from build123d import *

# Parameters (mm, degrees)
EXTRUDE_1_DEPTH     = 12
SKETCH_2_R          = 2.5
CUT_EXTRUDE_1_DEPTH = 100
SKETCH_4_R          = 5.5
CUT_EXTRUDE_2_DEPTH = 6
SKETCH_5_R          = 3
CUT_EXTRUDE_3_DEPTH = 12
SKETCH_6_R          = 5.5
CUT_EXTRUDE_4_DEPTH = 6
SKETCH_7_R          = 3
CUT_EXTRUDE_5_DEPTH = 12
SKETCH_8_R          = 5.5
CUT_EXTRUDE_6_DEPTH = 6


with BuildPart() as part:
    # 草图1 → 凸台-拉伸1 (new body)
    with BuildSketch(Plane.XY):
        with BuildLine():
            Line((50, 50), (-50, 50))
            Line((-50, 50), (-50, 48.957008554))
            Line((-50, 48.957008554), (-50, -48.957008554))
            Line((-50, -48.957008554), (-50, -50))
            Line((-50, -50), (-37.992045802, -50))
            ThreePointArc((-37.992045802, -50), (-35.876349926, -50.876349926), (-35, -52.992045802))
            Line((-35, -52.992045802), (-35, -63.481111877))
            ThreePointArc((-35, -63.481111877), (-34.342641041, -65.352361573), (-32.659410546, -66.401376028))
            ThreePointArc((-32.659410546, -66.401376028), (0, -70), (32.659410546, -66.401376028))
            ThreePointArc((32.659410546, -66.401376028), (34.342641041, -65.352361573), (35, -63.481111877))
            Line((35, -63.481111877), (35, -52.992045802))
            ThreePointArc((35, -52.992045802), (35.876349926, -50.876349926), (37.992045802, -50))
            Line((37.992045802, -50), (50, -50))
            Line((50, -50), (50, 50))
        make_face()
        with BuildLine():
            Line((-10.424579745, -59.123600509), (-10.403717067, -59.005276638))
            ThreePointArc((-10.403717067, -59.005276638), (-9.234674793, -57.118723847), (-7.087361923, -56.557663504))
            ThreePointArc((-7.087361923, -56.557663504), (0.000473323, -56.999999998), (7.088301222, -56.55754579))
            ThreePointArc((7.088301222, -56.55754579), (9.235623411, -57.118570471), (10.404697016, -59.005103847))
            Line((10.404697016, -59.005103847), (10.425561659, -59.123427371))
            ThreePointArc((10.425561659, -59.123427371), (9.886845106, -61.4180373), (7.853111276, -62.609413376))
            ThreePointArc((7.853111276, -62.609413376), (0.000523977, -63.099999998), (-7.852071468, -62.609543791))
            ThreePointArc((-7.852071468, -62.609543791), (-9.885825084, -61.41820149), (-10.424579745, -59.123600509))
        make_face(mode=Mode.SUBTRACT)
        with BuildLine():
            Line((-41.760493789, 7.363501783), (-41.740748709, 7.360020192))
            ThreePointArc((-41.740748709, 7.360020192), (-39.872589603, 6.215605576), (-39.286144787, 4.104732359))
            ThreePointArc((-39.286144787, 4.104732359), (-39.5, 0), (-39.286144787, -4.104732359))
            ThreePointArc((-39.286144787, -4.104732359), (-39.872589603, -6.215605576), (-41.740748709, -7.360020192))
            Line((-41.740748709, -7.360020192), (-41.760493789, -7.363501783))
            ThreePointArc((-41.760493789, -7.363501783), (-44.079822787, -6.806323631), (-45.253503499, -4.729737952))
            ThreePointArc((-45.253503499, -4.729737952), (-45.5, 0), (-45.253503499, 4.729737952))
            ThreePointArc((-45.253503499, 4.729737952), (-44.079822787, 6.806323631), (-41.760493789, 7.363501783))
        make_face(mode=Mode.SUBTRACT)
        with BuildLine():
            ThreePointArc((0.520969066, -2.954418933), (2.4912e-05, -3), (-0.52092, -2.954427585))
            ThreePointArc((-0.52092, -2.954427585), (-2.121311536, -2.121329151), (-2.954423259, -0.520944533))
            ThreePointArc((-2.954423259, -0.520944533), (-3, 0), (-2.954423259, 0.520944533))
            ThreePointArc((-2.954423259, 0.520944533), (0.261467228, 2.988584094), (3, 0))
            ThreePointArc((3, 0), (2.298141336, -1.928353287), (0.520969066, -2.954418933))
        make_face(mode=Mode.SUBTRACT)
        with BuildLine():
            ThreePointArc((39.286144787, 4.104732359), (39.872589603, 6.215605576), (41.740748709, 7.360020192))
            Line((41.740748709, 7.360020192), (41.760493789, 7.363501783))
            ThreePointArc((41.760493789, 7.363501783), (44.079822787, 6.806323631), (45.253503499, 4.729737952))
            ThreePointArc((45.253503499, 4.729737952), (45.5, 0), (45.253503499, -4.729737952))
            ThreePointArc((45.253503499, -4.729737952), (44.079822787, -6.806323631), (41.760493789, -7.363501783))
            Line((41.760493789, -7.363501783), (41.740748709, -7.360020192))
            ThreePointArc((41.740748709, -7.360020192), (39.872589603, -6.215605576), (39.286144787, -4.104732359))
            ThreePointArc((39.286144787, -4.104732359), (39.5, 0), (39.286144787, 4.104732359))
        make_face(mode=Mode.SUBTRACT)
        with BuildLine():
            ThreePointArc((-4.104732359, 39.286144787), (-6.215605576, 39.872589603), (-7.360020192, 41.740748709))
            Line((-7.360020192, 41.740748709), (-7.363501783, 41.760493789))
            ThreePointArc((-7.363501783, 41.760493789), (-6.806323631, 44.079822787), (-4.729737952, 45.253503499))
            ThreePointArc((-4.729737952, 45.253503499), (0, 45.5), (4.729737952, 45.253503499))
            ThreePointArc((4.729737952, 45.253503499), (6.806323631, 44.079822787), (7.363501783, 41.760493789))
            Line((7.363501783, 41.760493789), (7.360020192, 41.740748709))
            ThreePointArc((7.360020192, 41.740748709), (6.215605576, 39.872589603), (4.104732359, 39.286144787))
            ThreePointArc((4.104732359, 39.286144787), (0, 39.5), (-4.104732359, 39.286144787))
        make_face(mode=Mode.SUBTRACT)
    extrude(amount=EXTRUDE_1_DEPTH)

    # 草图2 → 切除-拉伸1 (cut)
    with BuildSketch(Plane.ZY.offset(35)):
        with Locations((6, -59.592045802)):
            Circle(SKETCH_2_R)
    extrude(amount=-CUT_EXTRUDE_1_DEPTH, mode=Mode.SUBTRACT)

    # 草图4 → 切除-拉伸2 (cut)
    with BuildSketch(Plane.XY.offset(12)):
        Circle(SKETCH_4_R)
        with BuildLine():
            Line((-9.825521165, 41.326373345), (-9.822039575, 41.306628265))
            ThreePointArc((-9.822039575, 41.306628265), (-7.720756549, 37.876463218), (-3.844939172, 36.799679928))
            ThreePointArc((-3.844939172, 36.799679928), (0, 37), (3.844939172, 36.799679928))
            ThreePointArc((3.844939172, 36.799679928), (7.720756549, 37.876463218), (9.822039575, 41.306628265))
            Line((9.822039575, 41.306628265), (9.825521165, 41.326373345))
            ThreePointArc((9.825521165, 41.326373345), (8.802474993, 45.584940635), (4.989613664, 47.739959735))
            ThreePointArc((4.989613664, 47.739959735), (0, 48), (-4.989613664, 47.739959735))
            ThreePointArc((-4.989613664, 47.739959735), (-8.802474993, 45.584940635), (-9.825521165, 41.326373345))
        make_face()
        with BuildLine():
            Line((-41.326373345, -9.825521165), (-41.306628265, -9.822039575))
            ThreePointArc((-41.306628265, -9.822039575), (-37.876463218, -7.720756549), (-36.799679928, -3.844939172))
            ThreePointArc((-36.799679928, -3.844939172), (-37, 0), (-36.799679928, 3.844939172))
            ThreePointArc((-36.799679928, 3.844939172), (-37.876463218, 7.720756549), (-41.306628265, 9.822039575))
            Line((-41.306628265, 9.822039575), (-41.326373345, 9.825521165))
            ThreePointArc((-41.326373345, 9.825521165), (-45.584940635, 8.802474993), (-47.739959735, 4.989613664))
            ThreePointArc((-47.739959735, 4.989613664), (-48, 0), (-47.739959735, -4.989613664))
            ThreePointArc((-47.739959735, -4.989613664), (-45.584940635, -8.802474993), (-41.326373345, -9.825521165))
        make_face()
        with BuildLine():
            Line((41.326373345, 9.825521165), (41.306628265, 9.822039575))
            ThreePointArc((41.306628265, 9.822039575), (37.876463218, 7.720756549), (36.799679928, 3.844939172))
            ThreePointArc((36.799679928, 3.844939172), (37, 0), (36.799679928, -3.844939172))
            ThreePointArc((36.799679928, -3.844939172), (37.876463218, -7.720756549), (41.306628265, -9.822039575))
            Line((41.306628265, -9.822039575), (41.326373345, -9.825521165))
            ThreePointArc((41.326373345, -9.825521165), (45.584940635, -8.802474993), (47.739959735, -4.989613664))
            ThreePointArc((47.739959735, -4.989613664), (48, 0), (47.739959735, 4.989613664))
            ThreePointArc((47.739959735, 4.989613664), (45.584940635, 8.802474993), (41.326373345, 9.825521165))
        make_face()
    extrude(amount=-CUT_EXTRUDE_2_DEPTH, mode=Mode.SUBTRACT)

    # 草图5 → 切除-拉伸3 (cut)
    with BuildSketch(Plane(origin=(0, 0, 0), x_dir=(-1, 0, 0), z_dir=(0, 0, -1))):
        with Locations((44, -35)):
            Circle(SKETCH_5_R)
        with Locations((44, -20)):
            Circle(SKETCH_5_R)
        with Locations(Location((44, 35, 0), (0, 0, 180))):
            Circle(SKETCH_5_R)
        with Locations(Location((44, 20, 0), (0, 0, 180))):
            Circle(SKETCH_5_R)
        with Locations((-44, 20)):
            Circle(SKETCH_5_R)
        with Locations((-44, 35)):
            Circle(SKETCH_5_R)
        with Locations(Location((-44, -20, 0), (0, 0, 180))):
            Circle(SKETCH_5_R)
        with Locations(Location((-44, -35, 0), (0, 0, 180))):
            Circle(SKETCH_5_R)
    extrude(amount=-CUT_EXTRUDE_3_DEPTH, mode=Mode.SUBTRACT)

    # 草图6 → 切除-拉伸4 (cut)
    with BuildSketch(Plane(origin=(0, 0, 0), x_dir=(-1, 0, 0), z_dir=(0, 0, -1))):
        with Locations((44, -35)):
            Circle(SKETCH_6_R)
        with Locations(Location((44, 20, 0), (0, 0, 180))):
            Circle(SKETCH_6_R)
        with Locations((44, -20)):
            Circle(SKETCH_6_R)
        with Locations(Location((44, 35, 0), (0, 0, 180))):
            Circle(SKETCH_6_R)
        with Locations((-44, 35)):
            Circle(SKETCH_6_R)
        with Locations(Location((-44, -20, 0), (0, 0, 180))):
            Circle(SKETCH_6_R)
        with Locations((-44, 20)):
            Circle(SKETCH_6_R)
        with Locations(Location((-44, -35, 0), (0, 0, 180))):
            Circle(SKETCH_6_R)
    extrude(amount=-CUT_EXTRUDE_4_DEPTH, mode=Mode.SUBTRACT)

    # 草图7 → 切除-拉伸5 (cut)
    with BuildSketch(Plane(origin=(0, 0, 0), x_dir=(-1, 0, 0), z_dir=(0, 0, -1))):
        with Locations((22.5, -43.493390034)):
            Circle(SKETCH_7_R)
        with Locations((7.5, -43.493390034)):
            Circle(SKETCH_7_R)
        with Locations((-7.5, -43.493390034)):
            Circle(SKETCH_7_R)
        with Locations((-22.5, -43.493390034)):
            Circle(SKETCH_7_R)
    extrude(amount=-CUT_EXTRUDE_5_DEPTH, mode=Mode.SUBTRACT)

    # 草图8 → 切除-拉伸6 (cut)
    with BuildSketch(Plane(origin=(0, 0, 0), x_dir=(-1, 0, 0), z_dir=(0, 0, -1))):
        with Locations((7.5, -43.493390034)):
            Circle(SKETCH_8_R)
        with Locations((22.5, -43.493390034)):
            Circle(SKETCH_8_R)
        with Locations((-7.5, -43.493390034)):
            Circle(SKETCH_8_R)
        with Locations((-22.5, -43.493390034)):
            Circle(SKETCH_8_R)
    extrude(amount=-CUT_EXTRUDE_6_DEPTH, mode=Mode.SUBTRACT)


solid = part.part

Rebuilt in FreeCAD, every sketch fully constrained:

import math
import FreeCAD as App
import Part
import Sketcher

V = App.Vector
Q = App.Units.Quantity

doc = App.newDocument("Part")
body = doc.addObject("PartDesign::Body", "Body")

sketch1 = body.newObject("Sketcher::SketchObject", "Sketch")
sketch1.AttachmentSupport = (doc.getObject("XY_Plane"), [""])
sketch1.MapMode = "FlatFace"
sketch1.addGeometry([
    Part.LineSegment(V(50, 50, 0), V(-50, 50, 0)),
    Part.LineSegment(V(-50, 50, 0), V(-50, -50, 0)),
    Part.LineSegment(V(-50, -50, 0), V(-37.992046, -50, 0)),
    Part.ArcOfCircle(Part.Circle(V(-37.992046, -52.992046, 0), V(0, 0, 1), 2.992046), math.radians(0), math.radians(90)),
    Part.LineSegment(V(-35, -52.992046, 0), V(-35, -63.481112, 0)),
    Part.ArcOfCircle(Part.Circle(V(-32.007954, -63.481112, 0), V(0, 0, 1), 2.992046), math.radians(-180), math.radians(-102.575705)),
    Part.ArcOfCircle(Part.Circle(V(0, 80, 0), V(0, 0, 1), 150), math.radians(-102.575705), math.radians(-77.424295)),
    Part.ArcOfCircle(Part.Circle(V(32.007954, -63.481112, 0), V(0, 0, 1), 2.992046), math.radians(-77.424295), math.radians(0)),
    Part.LineSegment(V(35, -63.481112, 0), V(35, -52.992046, 0)),
    Part.ArcOfCircle(Part.Circle(V(37.992046, -52.992046, 0), V(0, 0, 1), 2.992046), math.radians(90), math.radians(180)),
    Part.LineSegment(V(37.992046, -50, 0), V(50, -50, 0)),
    Part.LineSegment(V(50, -50, 0), V(50, 50, 0)),
    Part.ArcOfCircle(Part.Circle(V(-7.48, -59.642784, 0), V(0, 0, 1), 2.99), math.radians(170.000476), math.radians(262.851667)),
    Part.LineSegment(V(-10.42458, -59.123601, 0), V(-10.403717, -59.005277, 0)),
    Part.ArcOfCircle(Part.Circle(V(-7.459138, -59.52446, 0), V(0, 0, 1), 2.99), math.radians(82.857375), math.radians(170.000476)),
    Part.ArcOfCircle(Part.Circle(V(0, 0, 0), V(0, 0, 1), 57), math.radians(-97.142625), math.radians(-82.856424)),
    Part.ArcOfCircle(Part.Circle(V(7.460126, -59.524336, 0), V(0, 0, 1), 2.99), math.radians(10.000476), math.radians(97.143576)),
    Part.LineSegment(V(10.404697, -59.005104, 0), V(10.425562, -59.123427, 0)),
    Part.ArcOfCircle(Part.Circle(V(7.480991, -59.64266, 0), V(0, 0, 1), 2.99), math.radians(-82.850715), math.radians(10.000476)),
    Part.ArcOfCircle(Part.Circle(V(0, 0, 0), V(0, 0, 1), 63.1), math.radians(-97.148333), math.radians(-82.850715)),
    Part.ArcOfCircle(Part.Circle(V(-42.279702, 4.418927, 0), V(0, 0, 1), 2.99), math.radians(80), math.radians(174.033309)),
    Part.LineSegment(V(-41.760494, 7.363502, 0), V(-41.740749, 7.36002, 0)),
    Part.ArcOfCircle(Part.Circle(V(-42.259957, 4.415445, 0), V(0, 0, 1), 2.99), math.radians(-5.96479), math.radians(80)),
    Part.ArcOfCircle(Part.Circle(V(0, 0, 0), V(0, 0, 1), 39.5), math.radians(174.03521), math.radians(185.96479)),
    Part.ArcOfCircle(Part.Circle(V(-42.259957, -4.415445, 0), V(0, 0, 1), 2.99), math.radians(-80), math.radians(5.96479)),
    Part.LineSegment(V(-41.740749, -7.36002, 0), V(-41.760494, -7.363502, 0)),
    Part.ArcOfCircle(Part.Circle(V(-42.279702, -4.418927, 0), V(0, 0, 1), 2.99), math.radians(-174.033309), math.radians(-80)),
    Part.ArcOfCircle(Part.Circle(V(0, 0, 0), V(0, 0, 1), 45.5), math.radians(174.033309), math.radians(185.966691)),
    Part.ArcOfCircle(Part.Circle(V(0, 0, 0), V(0, 0, 1), 3), math.radians(-79.999524), math.radians(0)),
    Part.ArcOfCircle(Part.Circle(V(0, 0, 0), V(0, 0, 1), 3), math.radians(-99.999524), math.radians(-79.999524)),
    Part.ArcOfCircle(Part.Circle(V(0, 0, 0), V(0, 0, 1), 3), math.radians(-170), math.radians(-99.999524)),
    Part.ArcOfCircle(Part.Circle(V(0, 0, 0), V(0, 0, 1), 3), math.radians(170), math.radians(190)),
    Part.ArcOfCircle(Part.Circle(V(0, 0, 0), V(0, 0, 1), 3), math.radians(0), math.radians(170)),
    Part.ArcOfCircle(Part.Circle(V(0, 0, 0), V(0, 0, 1), 39.5), math.radians(-5.96479), math.radians(5.96479)),
    Part.ArcOfCircle(Part.Circle(V(42.259957, 4.415445, 0), V(0, 0, 1), 2.99), math.radians(100), math.radians(185.96479)),
    Part.LineSegment(V(41.740749, 7.36002, 0), V(41.760494, 7.363502, 0)),
    Part.ArcOfCircle(Part.Circle(V(42.279702, 4.418927, 0), V(0, 0, 1), 2.99), math.radians(5.966691), math.radians(100)),
    Part.ArcOfCircle(Part.Circle(V(0, 0, 0), V(0, 0, 1), 45.5), math.radians(-5.966691), math.radians(5.966691)),
    Part.ArcOfCircle(Part.Circle(V(42.279702, -4.418927, 0), V(0, 0, 1), 2.99), math.radians(-100), math.radians(-5.966691)),
    Part.LineSegment(V(41.760494, -7.363502, 0), V(41.740749, -7.36002, 0)),
    Part.ArcOfCircle(Part.Circle(V(42.259957, -4.415445, 0), V(0, 0, 1), 2.99), math.radians(174.03521), math.radians(260)),
    Part.ArcOfCircle(Part.Circle(V(0, 0, 0), V(0, 0, 1), 39.5), math.radians(84.03521), math.radians(95.96479)),
    Part.ArcOfCircle(Part.Circle(V(-4.415445, 42.259957, 0), V(0, 0, 1), 2.99), math.radians(-170), math.radians(-84.03521)),
    Part.LineSegment(V(-7.36002, 41.740749, 0), V(-7.363502, 41.760494, 0)),
    Part.ArcOfCircle(Part.Circle(V(-4.418927, 42.279702, 0), V(0, 0, 1), 2.99), math.radians(95.966691), math.radians(190)),
    Part.ArcOfCircle(Part.Circle(V(0, 0, 0), V(0, 0, 1), 45.5), math.radians(84.033309), math.radians(95.966691)),
    Part.ArcOfCircle(Part.Circle(V(4.418927, 42.279702, 0), V(0, 0, 1), 2.99), math.radians(-10), math.radians(84.033309)),
    Part.LineSegment(V(7.363502, 41.760494, 0), V(7.36002, 41.740749, 0)),
    Part.ArcOfCircle(Part.Circle(V(4.415445, 42.259957, 0), V(0, 0, 1), 2.99), math.radians(-95.96479), math.radians(-10)),
], False)
sketch1.addConstraint([
    Sketcher.Constraint("Coincident", 0, 2, 1, 1),
    Sketcher.Constraint("Coincident", 1, 2, 2, 1),
    Sketcher.Constraint("Tangent", 2, 2, 3, 2),
    Sketcher.Constraint("Tangent", 3, 1, 4, 1),
    Sketcher.Constraint("Tangent", 4, 2, 5, 1),
    Sketcher.Constraint("Tangent", 5, 2, 6, 1),
    Sketcher.Constraint("Tangent", 6, 2, 7, 1),
    Sketcher.Constraint("Tangent", 7, 2, 8, 1),
    Sketcher.Constraint("Tangent", 8, 2, 9, 2),
    Sketcher.Constraint("Tangent", 9, 1, 10, 1),
    Sketcher.Constraint("Coincident", 10, 2, 11, 1),
    Sketcher.Constraint("Coincident", 11, 2, 0, 1),
    Sketcher.Constraint("Tangent", 12, 1, 13, 1),
    Sketcher.Constraint("Tangent", 13, 2, 14, 2),
    Sketcher.Constraint("Tangent", 14, 1, 15, 1),
    Sketcher.Constraint("Tangent", 15, 2, 16, 2),
    Sketcher.Constraint("Tangent", 16, 1, 17, 1),
    Sketcher.Constraint("Tangent", 17, 2, 18, 2),
    Sketcher.Constraint("Tangent", 18, 1, 19, 2),
    Sketcher.Constraint("Tangent", 19, 1, 12, 2),
    Sketcher.Constraint("Tangent", 20, 1, 21, 1),
    Sketcher.Constraint("Tangent", 21, 2, 22, 2),
    Sketcher.Constraint("Tangent", 22, 1, 23, 1),
    Sketcher.Constraint("Tangent", 23, 2, 24, 2),
    Sketcher.Constraint("Tangent", 24, 1, 25, 1),
    Sketcher.Constraint("Tangent", 25, 2, 26, 2),
    Sketcher.Constraint("Tangent", 26, 1, 27, 2),
    Sketcher.Constraint("Tangent", 27, 1, 20, 2),
    Sketcher.Constraint("Tangent", 28, 1, 29, 2),
    Sketcher.Constraint("Tangent", 29, 1, 30, 2),
    Sketcher.Constraint("Tangent", 30, 1, 31, 2),
    Sketcher.Constraint("Tangent", 31, 1, 32, 2),
    Sketcher.Constraint("Tangent", 32, 1, 28, 2),
    Sketcher.Constraint("Tangent", 33, 2, 34, 2),
    Sketcher.Constraint("Tangent", 34, 1, 35, 1),
    Sketcher.Constraint("Tangent", 35, 2, 36, 2),
    Sketcher.Constraint("Tangent", 36, 1, 37, 2),
    Sketcher.Constraint("Tangent", 37, 1, 38, 2),
    Sketcher.Constraint("Tangent", 38, 1, 39, 1),
    Sketcher.Constraint("Tangent", 39, 2, 40, 2),
    Sketcher.Constraint("Tangent", 40, 1, 33, 1),
    Sketcher.Constraint("Tangent", 41, 2, 42, 2),
    Sketcher.Constraint("Tangent", 42, 1, 43, 1),
    Sketcher.Constraint("Tangent", 43, 2, 44, 2),
    Sketcher.Constraint("Tangent", 44, 1, 45, 2),
    Sketcher.Constraint("Tangent", 45, 1, 46, 2),
    Sketcher.Constraint("Tangent", 46, 1, 47, 1),
    Sketcher.Constraint("Tangent", 47, 2, 48, 2),
    Sketcher.Constraint("Tangent", 48, 1, 41, 1),
    Sketcher.Constraint("Horizontal", 0),
    Sketcher.Constraint("Vertical", 1),
    Sketcher.Constraint("Horizontal", 2),
    Sketcher.Constraint("Vertical", 4),
    Sketcher.Constraint("Vertical", 8),
    Sketcher.Constraint("Horizontal", 10),
    Sketcher.Constraint("Vertical", 11),
    Sketcher.Constraint("Coincident", 15, 3, -1, 1),
    Sketcher.Constraint("Coincident", 19, 3, -1, 1),
    Sketcher.Constraint("Coincident", 23, 3, -1, 1),
    Sketcher.Constraint("Coincident", 27, 3, -1, 1),
    Sketcher.Constraint("Coincident", 28, 3, -1, 1),
    Sketcher.Constraint("Coincident", 30, 3, -1, 1),
    Sketcher.Constraint("Coincident", 33, 3, -1, 1),
    Sketcher.Constraint("Coincident", 37, 3, -1, 1),
    Sketcher.Constraint("Coincident", 41, 3, -1, 1),
    Sketcher.Constraint("Coincident", 45, 3, -1, 1),
    Sketcher.Constraint("Equal", 3, 5),
    Sketcher.Constraint("Equal", 5, 7),
    Sketcher.Constraint("Equal", 7, 9),
    Sketcher.Constraint("Equal", 12, 14),
    Sketcher.Constraint("Equal", 14, 16),
    Sketcher.Constraint("Equal", 16, 18),
    Sketcher.Constraint("Equal", 18, 20),
    Sketcher.Constraint("Equal", 20, 22),
    Sketcher.Constraint("Equal", 22, 24),
    Sketcher.Constraint("Equal", 24, 26),
    Sketcher.Constraint("Equal", 23, 33),
    Sketcher.Constraint("Equal", 26, 34),
    Sketcher.Constraint("Equal", 34, 36),
    Sketcher.Constraint("Equal", 27, 37),
    Sketcher.Constraint("Equal", 36, 38),
    Sketcher.Constraint("Equal", 38, 40),
    Sketcher.Constraint("Equal", 33, 41),
    Sketcher.Constraint("Equal", 40, 42),
    Sketcher.Constraint("Equal", 42, 44),
    Sketcher.Constraint("Equal", 37, 45),
    Sketcher.Constraint("Equal", 44, 46),
    Sketcher.Constraint("Equal", 46, 48),
    Sketcher.Constraint("Symmetric", 0, 2, 10, 2, -1, 1),
    Sketcher.Constraint("Symmetric", 24, 1, 34, 1, -1, 1),
    Sketcher.Constraint("Symmetric", 20, 1, 38, 1, -1, 1),
    Sketcher.Constraint("Symmetric", 5, 3, 7, 3, -2),
    Sketcher.Constraint("Symmetric", 21, 2, 34, 1, -2),
    Sketcher.Constraint("Symmetric", 43, 2, 46, 1, -2),
    Sketcher.Constraint("PointOnObject", 32, 1, -1),
    Sketcher.Constraint("Horizontal", 3, 3, 9, 3),
    Sketcher.Constraint("Vertical", 30, 1, 31, 1),
    Sketcher.Constraint("Equal", 0, 1),
    Sketcher.Constraint("Radius", 6, Q("150 mm")),
    Sketcher.Constraint("Radius", 15, Q("57 mm")),
    Sketcher.Constraint("Radius", 28, Q("3 mm")),
    Sketcher.Constraint("Radius", 19, Q("63.1 mm")),
    Sketcher.Constraint("Radius", 23, Q("39.5 mm")),
    Sketcher.Constraint("Radius", 27, Q("45.5 mm")),
    Sketcher.Constraint("DistanceX", 0, 2, 0, 1, Q("100 mm")),
    Sketcher.Constraint("Angle", 43, Q("100.000002 deg")),
    Sketcher.Constraint("Radius", 12, Q("2.99 mm")),
    Sketcher.Constraint("DistanceY", -1, 1, 6, 3, Q("80 mm")),
    Sketcher.Constraint("DistanceX", 3, 1, -1, 1, Q("35 mm")),
    Sketcher.Constraint("DistanceX", 12, 3, -1, 1, Q("7.48 mm")),
    Sketcher.Constraint("Radius", 3, Q("2.992046 mm")),
    Sketcher.Constraint("DistanceX", 20, 3, -1, 1, Q("42.279702 mm")),
    Sketcher.Constraint("DistanceY", -1, 1, 44, 3, Q("42.279702 mm")),
    Sketcher.Constraint("DistanceY", 12, 1, -1, 1, Q("59.123601 mm")),
    Sketcher.Constraint("DistanceX", -1, 1, 15, 2, Q("7.088301 mm")),
    Sketcher.Constraint("DistanceY", -1, 1, 20, 1, Q("7.363502 mm")),
    Sketcher.Constraint("DistanceX", -1, 1, 18, 3, Q("7.480991 mm")),
    Sketcher.Constraint("DistanceX", -1, 1, 28, 1, Q("0.520969 mm")),
    Sketcher.Constraint("DistanceX", 29, 1, -1, 1, Q("0.52092 mm")),
    Sketcher.Constraint("DistanceX", 30, 1, -1, 1, Q("2.954423 mm")),
])
pad1 = body.newObject("PartDesign::Pad", "Pad")
pad1.Profile = sketch1
pad1.Length = 12

sketch2 = body.newObject("Sketcher::SketchObject", "Sketch001")
sketch2.AttachmentSupport = (doc.getObject("YZ_Plane"), [""])
sketch2.MapMode = "FlatFace"
sketch2.AttachmentOffset = App.Placement(V(0, 0, -35), App.Rotation())
sketch2.addGeometry(Part.Circle(V(-59.592046, 6, 0), V(0, 0, 1), 2.5), False)
sketch2.addConstraint([
    Sketcher.Constraint("Diameter", 0, Q("5 mm")),
    Sketcher.Constraint("DistanceY", -1, 1, 0, 3, Q("6 mm")),
    Sketcher.Constraint("DistanceX", 0, 3, -1, 1, Q("59.592046 mm")),
])
pocket1 = body.newObject("PartDesign::Pocket", "Pocket")
pocket1.Profile = sketch2
pocket1.Length = 100
pocket1.Reversed = True

sketch3 = body.newObject("Sketcher::SketchObject", "Sketch002")
sketch3.AttachmentSupport = (doc.getObject("XY_Plane"), [""])
sketch3.MapMode = "FlatFace"
sketch3.AttachmentOffset = App.Placement(V(0, 0, 12), App.Rotation())
sketch3.addGeometry([
    Part.Circle(V(0, 0, 0), V(0, 0, 1), 5.5),
    Part.LineSegment(V(-9.825521, 41.326373, 0), V(-9.82204, 41.306628, 0)),
    Part.ArcOfCircle(Part.Circle(V(-4.415445, 42.259957, 0), V(0, 0, 1), 5.49), math.radians(-170), math.radians(-84.03521)),
    Part.ArcOfCircle(Part.Circle(V(0, 0, 0), V(0, 0, 1), 37), math.radians(84.03521), math.radians(95.96479)),
    Part.ArcOfCircle(Part.Circle(V(4.415445, 42.259957, 0), V(0, 0, 1), 5.49), math.radians(-95.96479), math.radians(-10)),
    Part.LineSegment(V(9.82204, 41.306628, 0), V(9.825521, 41.326373, 0)),
    Part.ArcOfCircle(Part.Circle(V(4.418927, 42.279702, 0), V(0, 0, 1), 5.49), math.radians(-10), math.radians(84.033309)),
    Part.ArcOfCircle(Part.Circle(V(0, 0, 0), V(0, 0, 1), 48), math.radians(84.033309), math.radians(95.966691)),
    Part.ArcOfCircle(Part.Circle(V(-4.418927, 42.279702, 0), V(0, 0, 1), 5.49), math.radians(95.966691), math.radians(190)),
    Part.LineSegment(V(-41.326373, -9.825521, 0), V(-41.306628, -9.82204, 0)),
    Part.ArcOfCircle(Part.Circle(V(-42.259957, -4.415445, 0), V(0, 0, 1), 5.49), math.radians(-80), math.radians(5.96479)),
    Part.ArcOfCircle(Part.Circle(V(0, 0, 0), V(0, 0, 1), 37), math.radians(174.03521), math.radians(185.96479)),
    Part.ArcOfCircle(Part.Circle(V(-42.259957, 4.415445, 0), V(0, 0, 1), 5.49), math.radians(-5.96479), math.radians(80)),
    Part.LineSegment(V(-41.306628, 9.82204, 0), V(-41.326373, 9.825521, 0)),
    Part.ArcOfCircle(Part.Circle(V(-42.279702, 4.418927, 0), V(0, 0, 1), 5.49), math.radians(80), math.radians(174.033309)),
    Part.ArcOfCircle(Part.Circle(V(0, 0, 0), V(0, 0, 1), 48), math.radians(174.033309), math.radians(185.966691)),
    Part.ArcOfCircle(Part.Circle(V(-42.279702, -4.418927, 0), V(0, 0, 1), 5.49), math.radians(-174.033309), math.radians(-80)),
    Part.LineSegment(V(41.326373, 9.825521, 0), V(41.306628, 9.82204, 0)),
    Part.ArcOfCircle(Part.Circle(V(42.259957, 4.415445, 0), V(0, 0, 1), 5.49), math.radians(100), math.radians(185.96479)),
    Part.ArcOfCircle(Part.Circle(V(0, 0, 0), V(0, 0, 1), 37), math.radians(-5.96479), math.radians(5.96479)),
    Part.ArcOfCircle(Part.Circle(V(42.259957, -4.415445, 0), V(0, 0, 1), 5.49), math.radians(174.03521), math.radians(260)),
    Part.LineSegment(V(41.306628, -9.82204, 0), V(41.326373, -9.825521, 0)),
    Part.ArcOfCircle(Part.Circle(V(42.279702, -4.418927, 0), V(0, 0, 1), 5.49), math.radians(-100), math.radians(-5.966691)),
    Part.ArcOfCircle(Part.Circle(V(0, 0, 0), V(0, 0, 1), 48), math.radians(-5.966691), math.radians(5.966691)),
    Part.ArcOfCircle(Part.Circle(V(42.279702, 4.418927, 0), V(0, 0, 1), 5.49), math.radians(5.966691), math.radians(100)),
], False)
sketch3.addConstraint([
    Sketcher.Constraint("Tangent", 1, 2, 2, 1),
    Sketcher.Constraint("Tangent", 2, 2, 3, 2),
    Sketcher.Constraint("Tangent", 3, 1, 4, 1),
    Sketcher.Constraint("Tangent", 4, 2, 5, 1),
    Sketcher.Constraint("Tangent", 5, 2, 6, 1),
    Sketcher.Constraint("Tangent", 6, 2, 7, 1),
    Sketcher.Constraint("Tangent", 7, 2, 8, 1),
    Sketcher.Constraint("Tangent", 8, 2, 1, 1),
    Sketcher.Constraint("Tangent", 9, 2, 10, 1),
    Sketcher.Constraint("Tangent", 10, 2, 11, 2),
    Sketcher.Constraint("Tangent", 11, 1, 12, 1),
    Sketcher.Constraint("Tangent", 12, 2, 13, 1),
    Sketcher.Constraint("Tangent", 13, 2, 14, 1),
    Sketcher.Constraint("Tangent", 14, 2, 15, 1),
    Sketcher.Constraint("Tangent", 15, 2, 16, 1),
    Sketcher.Constraint("Tangent", 16, 2, 9, 1),
    Sketcher.Constraint("Tangent", 17, 2, 18, 1),
    Sketcher.Constraint("Tangent", 18, 2, 19, 2),
    Sketcher.Constraint("Tangent", 19, 1, 20, 1),
    Sketcher.Constraint("Tangent", 20, 2, 21, 1),
    Sketcher.Constraint("Tangent", 21, 2, 22, 1),
    Sketcher.Constraint("Tangent", 22, 2, 23, 1),
    Sketcher.Constraint("Tangent", 23, 2, 24, 1),
    Sketcher.Constraint("Tangent", 24, 2, 17, 1),
    Sketcher.Constraint("Coincident", 0, 3, -1, 1),
    Sketcher.Constraint("Coincident", 3, 3, -1, 1),
    Sketcher.Constraint("Coincident", 7, 3, -1, 1),
    Sketcher.Constraint("Coincident", 11, 3, -1, 1),
    Sketcher.Constraint("Coincident", 15, 3, -1, 1),
    Sketcher.Constraint("Coincident", 19, 3, -1, 1),
    Sketcher.Constraint("Coincident", 23, 3, -1, 1),
    Sketcher.Constraint("Equal", 2, 4),
    Sketcher.Constraint("Equal", 4, 6),
    Sketcher.Constraint("Equal", 6, 8),
    Sketcher.Constraint("Equal", 8, 10),
    Sketcher.Constraint("Equal", 3, 11),
    Sketcher.Constraint("Equal", 10, 12),
    Sketcher.Constraint("Equal", 12, 14),
    Sketcher.Constraint("Equal", 7, 15),
    Sketcher.Constraint("Equal", 14, 16),
    Sketcher.Constraint("Equal", 16, 18),
    Sketcher.Constraint("Equal", 11, 19),
    Sketcher.Constraint("Equal", 18, 20),
    Sketcher.Constraint("Equal", 20, 22),
    Sketcher.Constraint("Equal", 15, 23),
    Sketcher.Constraint("Equal", 22, 24),
    Sketcher.Constraint("Symmetric", 9, 2, 17, 2, -1, 1),
    Sketcher.Constraint("Symmetric", 12, 2, 20, 2, -1, 1),
    Sketcher.Constraint("Symmetric", 1, 2, 4, 2, -2),
    Sketcher.Constraint("Symmetric", 12, 2, 17, 2, -2),
    Sketcher.Constraint("Diameter", 0, Q("11 mm")),
    Sketcher.Constraint("Radius", 3, Q("37 mm")),
    Sketcher.Constraint("Radius", 7, Q("48 mm")),
    Sketcher.Constraint("Radius", 2, Q("5.49 mm")),
    Sketcher.Constraint("DistanceY", -1, 1, 6, 3, Q("42.279702 mm")),
    Sketcher.Constraint("DistanceX", 14, 3, -1, 1, Q("42.279702 mm")),
    Sketcher.Constraint("DistanceX", 1, 2, 2, 2, Q("5.9771 mm")),
    Sketcher.Constraint("DistanceY", 9, 2, 10, 2, Q("5.9771 mm")),
])
pocket2 = body.newObject("PartDesign::Pocket", "Pocket001")
pocket2.Profile = sketch3
pocket2.Length = 6

sketch4 = body.newObject("Sketcher::SketchObject", "Sketch003")
sketch4.AttachmentSupport = (doc.getObject("XY_Plane"), [""])
sketch4.MapMode = "FlatFace"
sketch4.addGeometry([
    Part.Circle(V(-44, -35, 0), V(0, 0, 1), 3),
    Part.Circle(V(-44, -20, 0), V(0, 0, 1), 3),
    Part.Circle(V(-44, 35, 0), V(0, 0, 1), 3),
    Part.Circle(V(-44, 20, 0), V(0, 0, 1), 3),
    Part.Circle(V(44, 20, 0), V(0, 0, 1), 3),
    Part.Circle(V(44, 35, 0), V(0, 0, 1), 3),
    Part.Circle(V(44, -20, 0), V(0, 0, 1), 3),
    Part.Circle(V(44, -35, 0), V(0, 0, 1), 3),
], False)
sketch4.addConstraint([
    Sketcher.Constraint("Equal", 0, 1),
    Sketcher.Constraint("Equal", 1, 2),
    Sketcher.Constraint("Equal", 2, 3),
    Sketcher.Constraint("Equal", 3, 4),
    Sketcher.Constraint("Equal", 4, 5),
    Sketcher.Constraint("Equal", 5, 6),
    Sketcher.Constraint("Equal", 6, 7),
    Sketcher.Constraint("Symmetric", 1, 3, 4, 3, -1, 1),
    Sketcher.Constraint("Symmetric", 0, 3, 5, 3, -1, 1),
    Sketcher.Constraint("Symmetric", 3, 3, 6, 3, -1, 1),
    Sketcher.Constraint("Symmetric", 2, 3, 7, 3, -1, 1),
    Sketcher.Constraint("Symmetric", 3, 3, 4, 3, -2),
    Sketcher.Constraint("Symmetric", 2, 3, 5, 3, -2),
    Sketcher.Constraint("Vertical", 0, 3, 1, 3),
    Sketcher.Constraint("Diameter", 0, Q("6 mm")),
    Sketcher.Constraint("DistanceX", 0, 3, -1, 1, Q("44 mm")),
    Sketcher.Constraint("DistanceY", 0, 3, -1, 1, Q("35 mm")),
    Sketcher.Constraint("DistanceY", 1, 3, -1, 1, Q("20 mm")),
])
pocket3 = body.newObject("PartDesign::Pocket", "Pocket002")
pocket3.Profile = sketch4
pocket3.Length = 12
pocket3.Reversed = True

sketch5 = body.newObject("Sketcher::SketchObject", "Sketch004")
sketch5.AttachmentSupport = (doc.getObject("XY_Plane"), [""])
sketch5.MapMode = "FlatFace"
sketch5.addGeometry([
    Part.Circle(V(-44, -35, 0), V(0, 0, 1), 5.5),
    Part.Circle(V(-44, 20, 0), V(0, 0, 1), 5.5),
    Part.Circle(V(-44, -20, 0), V(0, 0, 1), 5.5),
    Part.Circle(V(-44, 35, 0), V(0, 0, 1), 5.5),
    Part.Circle(V(44, 35, 0), V(0, 0, 1), 5.5),
    Part.Circle(V(44, -20, 0), V(0, 0, 1), 5.5),
    Part.Circle(V(44, 20, 0), V(0, 0, 1), 5.5),
    Part.Circle(V(44, -35, 0), V(0, 0, 1), 5.5),
], False)
sketch5.addConstraint([
    Sketcher.Constraint("Equal", 0, 1),
    Sketcher.Constraint("Equal", 1, 2),
    Sketcher.Constraint("Equal", 2, 3),
    Sketcher.Constraint("Equal", 3, 4),
    Sketcher.Constraint("Equal", 4, 5),
    Sketcher.Constraint("Equal", 5, 6),
    Sketcher.Constraint("Equal", 6, 7),
    Sketcher.Constraint("Symmetric", 0, 3, 4, 3, -1, 1),
    Sketcher.Constraint("Symmetric", 1, 3, 5, 3, -1, 1),
    Sketcher.Constraint("Symmetric", 2, 3, 6, 3, -1, 1),
    Sketcher.Constraint("Symmetric", 3, 3, 7, 3, -1, 1),
    Sketcher.Constraint("Symmetric", 3, 3, 4, 3, -2),
    Sketcher.Constraint("Symmetric", 2, 3, 5, 3, -2),
    Sketcher.Constraint("Vertical", 0, 3, 1, 3),
    Sketcher.Constraint("Diameter", 0, Q("11 mm")),
    Sketcher.Constraint("DistanceX", 0, 3, -1, 1, Q("44 mm")),
    Sketcher.Constraint("DistanceY", 0, 3, -1, 1, Q("35 mm")),
    Sketcher.Constraint("DistanceY", -1, 1, 1, 3, Q("20 mm")),
])
pocket4 = body.newObject("PartDesign::Pocket", "Pocket003")
pocket4.Profile = sketch5
pocket4.Length = 6
pocket4.Reversed = True

sketch6 = body.newObject("Sketcher::SketchObject", "Sketch005")
sketch6.AttachmentSupport = (doc.getObject("XY_Plane"), [""])
sketch6.MapMode = "FlatFace"
sketch6.addGeometry([
    Part.Circle(V(-22.5, -43.49339, 0), V(0, 0, 1), 3),
    Part.Circle(V(-7.5, -43.49339, 0), V(0, 0, 1), 3),
    Part.Circle(V(7.5, -43.49339, 0), V(0, 0, 1), 3),
    Part.Circle(V(22.5, -43.49339, 0), V(0, 0, 1), 3),
], False)
sketch6.addConstraint([
    Sketcher.Constraint("Equal", 0, 1),
    Sketcher.Constraint("Equal", 1, 2),
    Sketcher.Constraint("Equal", 2, 3),
    Sketcher.Constraint("Symmetric", 1, 3, 2, 3, -2),
    Sketcher.Constraint("Symmetric", 0, 3, 3, 3, -2),
    Sketcher.Constraint("Horizontal", 0, 3, 1, 3),
    Sketcher.Constraint("Diameter", 0, Q("6 mm")),
    Sketcher.Constraint("DistanceX", 0, 3, 1, 3, Q("15 mm")),
    Sketcher.Constraint("DistanceX", 1, 3, 2, 3, Q("15 mm")),
    Sketcher.Constraint("DistanceY", 0, 3, -1, 1, Q("43.49339 mm")),
])
pocket5 = body.newObject("PartDesign::Pocket", "Pocket004")
pocket5.Profile = sketch6
pocket5.Length = 12
pocket5.Reversed = True

sketch7 = body.newObject("Sketcher::SketchObject", "Sketch006")
sketch7.AttachmentSupport = (doc.getObject("XY_Plane"), [""])
sketch7.MapMode = "FlatFace"
sketch7.addGeometry([
    Part.Circle(V(-7.5, -43.49339, 0), V(0, 0, 1), 5.5),
    Part.Circle(V(-22.5, -43.49339, 0), V(0, 0, 1), 5.5),
    Part.Circle(V(7.5, -43.49339, 0), V(0, 0, 1), 5.5),
    Part.Circle(V(22.5, -43.49339, 0), V(0, 0, 1), 5.5),
], False)
sketch7.addConstraint([
    Sketcher.Constraint("Equal", 0, 1),
    Sketcher.Constraint("Equal", 1, 2),
    Sketcher.Constraint("Equal", 2, 3),
    Sketcher.Constraint("Symmetric", 0, 3, 2, 3, -2),
    Sketcher.Constraint("Symmetric", 1, 3, 3, 3, -2),
    Sketcher.Constraint("Horizontal", 0, 3, 1, 3),
    Sketcher.Constraint("Diameter", 0, Q("11 mm")),
    Sketcher.Constraint("DistanceX", 1, 3, 0, 3, Q("15 mm")),
    Sketcher.Constraint("DistanceX", 0, 3, 2, 3, Q("15 mm")),
    Sketcher.Constraint("DistanceY", 0, 3, -1, 1, Q("43.49339 mm")),
])
pocket6 = body.newObject("PartDesign::Pocket", "Pocket005")
pocket6.Profile = sketch7
pocket6.Length = 6
pocket6.Reversed = True

doc.recompute()
